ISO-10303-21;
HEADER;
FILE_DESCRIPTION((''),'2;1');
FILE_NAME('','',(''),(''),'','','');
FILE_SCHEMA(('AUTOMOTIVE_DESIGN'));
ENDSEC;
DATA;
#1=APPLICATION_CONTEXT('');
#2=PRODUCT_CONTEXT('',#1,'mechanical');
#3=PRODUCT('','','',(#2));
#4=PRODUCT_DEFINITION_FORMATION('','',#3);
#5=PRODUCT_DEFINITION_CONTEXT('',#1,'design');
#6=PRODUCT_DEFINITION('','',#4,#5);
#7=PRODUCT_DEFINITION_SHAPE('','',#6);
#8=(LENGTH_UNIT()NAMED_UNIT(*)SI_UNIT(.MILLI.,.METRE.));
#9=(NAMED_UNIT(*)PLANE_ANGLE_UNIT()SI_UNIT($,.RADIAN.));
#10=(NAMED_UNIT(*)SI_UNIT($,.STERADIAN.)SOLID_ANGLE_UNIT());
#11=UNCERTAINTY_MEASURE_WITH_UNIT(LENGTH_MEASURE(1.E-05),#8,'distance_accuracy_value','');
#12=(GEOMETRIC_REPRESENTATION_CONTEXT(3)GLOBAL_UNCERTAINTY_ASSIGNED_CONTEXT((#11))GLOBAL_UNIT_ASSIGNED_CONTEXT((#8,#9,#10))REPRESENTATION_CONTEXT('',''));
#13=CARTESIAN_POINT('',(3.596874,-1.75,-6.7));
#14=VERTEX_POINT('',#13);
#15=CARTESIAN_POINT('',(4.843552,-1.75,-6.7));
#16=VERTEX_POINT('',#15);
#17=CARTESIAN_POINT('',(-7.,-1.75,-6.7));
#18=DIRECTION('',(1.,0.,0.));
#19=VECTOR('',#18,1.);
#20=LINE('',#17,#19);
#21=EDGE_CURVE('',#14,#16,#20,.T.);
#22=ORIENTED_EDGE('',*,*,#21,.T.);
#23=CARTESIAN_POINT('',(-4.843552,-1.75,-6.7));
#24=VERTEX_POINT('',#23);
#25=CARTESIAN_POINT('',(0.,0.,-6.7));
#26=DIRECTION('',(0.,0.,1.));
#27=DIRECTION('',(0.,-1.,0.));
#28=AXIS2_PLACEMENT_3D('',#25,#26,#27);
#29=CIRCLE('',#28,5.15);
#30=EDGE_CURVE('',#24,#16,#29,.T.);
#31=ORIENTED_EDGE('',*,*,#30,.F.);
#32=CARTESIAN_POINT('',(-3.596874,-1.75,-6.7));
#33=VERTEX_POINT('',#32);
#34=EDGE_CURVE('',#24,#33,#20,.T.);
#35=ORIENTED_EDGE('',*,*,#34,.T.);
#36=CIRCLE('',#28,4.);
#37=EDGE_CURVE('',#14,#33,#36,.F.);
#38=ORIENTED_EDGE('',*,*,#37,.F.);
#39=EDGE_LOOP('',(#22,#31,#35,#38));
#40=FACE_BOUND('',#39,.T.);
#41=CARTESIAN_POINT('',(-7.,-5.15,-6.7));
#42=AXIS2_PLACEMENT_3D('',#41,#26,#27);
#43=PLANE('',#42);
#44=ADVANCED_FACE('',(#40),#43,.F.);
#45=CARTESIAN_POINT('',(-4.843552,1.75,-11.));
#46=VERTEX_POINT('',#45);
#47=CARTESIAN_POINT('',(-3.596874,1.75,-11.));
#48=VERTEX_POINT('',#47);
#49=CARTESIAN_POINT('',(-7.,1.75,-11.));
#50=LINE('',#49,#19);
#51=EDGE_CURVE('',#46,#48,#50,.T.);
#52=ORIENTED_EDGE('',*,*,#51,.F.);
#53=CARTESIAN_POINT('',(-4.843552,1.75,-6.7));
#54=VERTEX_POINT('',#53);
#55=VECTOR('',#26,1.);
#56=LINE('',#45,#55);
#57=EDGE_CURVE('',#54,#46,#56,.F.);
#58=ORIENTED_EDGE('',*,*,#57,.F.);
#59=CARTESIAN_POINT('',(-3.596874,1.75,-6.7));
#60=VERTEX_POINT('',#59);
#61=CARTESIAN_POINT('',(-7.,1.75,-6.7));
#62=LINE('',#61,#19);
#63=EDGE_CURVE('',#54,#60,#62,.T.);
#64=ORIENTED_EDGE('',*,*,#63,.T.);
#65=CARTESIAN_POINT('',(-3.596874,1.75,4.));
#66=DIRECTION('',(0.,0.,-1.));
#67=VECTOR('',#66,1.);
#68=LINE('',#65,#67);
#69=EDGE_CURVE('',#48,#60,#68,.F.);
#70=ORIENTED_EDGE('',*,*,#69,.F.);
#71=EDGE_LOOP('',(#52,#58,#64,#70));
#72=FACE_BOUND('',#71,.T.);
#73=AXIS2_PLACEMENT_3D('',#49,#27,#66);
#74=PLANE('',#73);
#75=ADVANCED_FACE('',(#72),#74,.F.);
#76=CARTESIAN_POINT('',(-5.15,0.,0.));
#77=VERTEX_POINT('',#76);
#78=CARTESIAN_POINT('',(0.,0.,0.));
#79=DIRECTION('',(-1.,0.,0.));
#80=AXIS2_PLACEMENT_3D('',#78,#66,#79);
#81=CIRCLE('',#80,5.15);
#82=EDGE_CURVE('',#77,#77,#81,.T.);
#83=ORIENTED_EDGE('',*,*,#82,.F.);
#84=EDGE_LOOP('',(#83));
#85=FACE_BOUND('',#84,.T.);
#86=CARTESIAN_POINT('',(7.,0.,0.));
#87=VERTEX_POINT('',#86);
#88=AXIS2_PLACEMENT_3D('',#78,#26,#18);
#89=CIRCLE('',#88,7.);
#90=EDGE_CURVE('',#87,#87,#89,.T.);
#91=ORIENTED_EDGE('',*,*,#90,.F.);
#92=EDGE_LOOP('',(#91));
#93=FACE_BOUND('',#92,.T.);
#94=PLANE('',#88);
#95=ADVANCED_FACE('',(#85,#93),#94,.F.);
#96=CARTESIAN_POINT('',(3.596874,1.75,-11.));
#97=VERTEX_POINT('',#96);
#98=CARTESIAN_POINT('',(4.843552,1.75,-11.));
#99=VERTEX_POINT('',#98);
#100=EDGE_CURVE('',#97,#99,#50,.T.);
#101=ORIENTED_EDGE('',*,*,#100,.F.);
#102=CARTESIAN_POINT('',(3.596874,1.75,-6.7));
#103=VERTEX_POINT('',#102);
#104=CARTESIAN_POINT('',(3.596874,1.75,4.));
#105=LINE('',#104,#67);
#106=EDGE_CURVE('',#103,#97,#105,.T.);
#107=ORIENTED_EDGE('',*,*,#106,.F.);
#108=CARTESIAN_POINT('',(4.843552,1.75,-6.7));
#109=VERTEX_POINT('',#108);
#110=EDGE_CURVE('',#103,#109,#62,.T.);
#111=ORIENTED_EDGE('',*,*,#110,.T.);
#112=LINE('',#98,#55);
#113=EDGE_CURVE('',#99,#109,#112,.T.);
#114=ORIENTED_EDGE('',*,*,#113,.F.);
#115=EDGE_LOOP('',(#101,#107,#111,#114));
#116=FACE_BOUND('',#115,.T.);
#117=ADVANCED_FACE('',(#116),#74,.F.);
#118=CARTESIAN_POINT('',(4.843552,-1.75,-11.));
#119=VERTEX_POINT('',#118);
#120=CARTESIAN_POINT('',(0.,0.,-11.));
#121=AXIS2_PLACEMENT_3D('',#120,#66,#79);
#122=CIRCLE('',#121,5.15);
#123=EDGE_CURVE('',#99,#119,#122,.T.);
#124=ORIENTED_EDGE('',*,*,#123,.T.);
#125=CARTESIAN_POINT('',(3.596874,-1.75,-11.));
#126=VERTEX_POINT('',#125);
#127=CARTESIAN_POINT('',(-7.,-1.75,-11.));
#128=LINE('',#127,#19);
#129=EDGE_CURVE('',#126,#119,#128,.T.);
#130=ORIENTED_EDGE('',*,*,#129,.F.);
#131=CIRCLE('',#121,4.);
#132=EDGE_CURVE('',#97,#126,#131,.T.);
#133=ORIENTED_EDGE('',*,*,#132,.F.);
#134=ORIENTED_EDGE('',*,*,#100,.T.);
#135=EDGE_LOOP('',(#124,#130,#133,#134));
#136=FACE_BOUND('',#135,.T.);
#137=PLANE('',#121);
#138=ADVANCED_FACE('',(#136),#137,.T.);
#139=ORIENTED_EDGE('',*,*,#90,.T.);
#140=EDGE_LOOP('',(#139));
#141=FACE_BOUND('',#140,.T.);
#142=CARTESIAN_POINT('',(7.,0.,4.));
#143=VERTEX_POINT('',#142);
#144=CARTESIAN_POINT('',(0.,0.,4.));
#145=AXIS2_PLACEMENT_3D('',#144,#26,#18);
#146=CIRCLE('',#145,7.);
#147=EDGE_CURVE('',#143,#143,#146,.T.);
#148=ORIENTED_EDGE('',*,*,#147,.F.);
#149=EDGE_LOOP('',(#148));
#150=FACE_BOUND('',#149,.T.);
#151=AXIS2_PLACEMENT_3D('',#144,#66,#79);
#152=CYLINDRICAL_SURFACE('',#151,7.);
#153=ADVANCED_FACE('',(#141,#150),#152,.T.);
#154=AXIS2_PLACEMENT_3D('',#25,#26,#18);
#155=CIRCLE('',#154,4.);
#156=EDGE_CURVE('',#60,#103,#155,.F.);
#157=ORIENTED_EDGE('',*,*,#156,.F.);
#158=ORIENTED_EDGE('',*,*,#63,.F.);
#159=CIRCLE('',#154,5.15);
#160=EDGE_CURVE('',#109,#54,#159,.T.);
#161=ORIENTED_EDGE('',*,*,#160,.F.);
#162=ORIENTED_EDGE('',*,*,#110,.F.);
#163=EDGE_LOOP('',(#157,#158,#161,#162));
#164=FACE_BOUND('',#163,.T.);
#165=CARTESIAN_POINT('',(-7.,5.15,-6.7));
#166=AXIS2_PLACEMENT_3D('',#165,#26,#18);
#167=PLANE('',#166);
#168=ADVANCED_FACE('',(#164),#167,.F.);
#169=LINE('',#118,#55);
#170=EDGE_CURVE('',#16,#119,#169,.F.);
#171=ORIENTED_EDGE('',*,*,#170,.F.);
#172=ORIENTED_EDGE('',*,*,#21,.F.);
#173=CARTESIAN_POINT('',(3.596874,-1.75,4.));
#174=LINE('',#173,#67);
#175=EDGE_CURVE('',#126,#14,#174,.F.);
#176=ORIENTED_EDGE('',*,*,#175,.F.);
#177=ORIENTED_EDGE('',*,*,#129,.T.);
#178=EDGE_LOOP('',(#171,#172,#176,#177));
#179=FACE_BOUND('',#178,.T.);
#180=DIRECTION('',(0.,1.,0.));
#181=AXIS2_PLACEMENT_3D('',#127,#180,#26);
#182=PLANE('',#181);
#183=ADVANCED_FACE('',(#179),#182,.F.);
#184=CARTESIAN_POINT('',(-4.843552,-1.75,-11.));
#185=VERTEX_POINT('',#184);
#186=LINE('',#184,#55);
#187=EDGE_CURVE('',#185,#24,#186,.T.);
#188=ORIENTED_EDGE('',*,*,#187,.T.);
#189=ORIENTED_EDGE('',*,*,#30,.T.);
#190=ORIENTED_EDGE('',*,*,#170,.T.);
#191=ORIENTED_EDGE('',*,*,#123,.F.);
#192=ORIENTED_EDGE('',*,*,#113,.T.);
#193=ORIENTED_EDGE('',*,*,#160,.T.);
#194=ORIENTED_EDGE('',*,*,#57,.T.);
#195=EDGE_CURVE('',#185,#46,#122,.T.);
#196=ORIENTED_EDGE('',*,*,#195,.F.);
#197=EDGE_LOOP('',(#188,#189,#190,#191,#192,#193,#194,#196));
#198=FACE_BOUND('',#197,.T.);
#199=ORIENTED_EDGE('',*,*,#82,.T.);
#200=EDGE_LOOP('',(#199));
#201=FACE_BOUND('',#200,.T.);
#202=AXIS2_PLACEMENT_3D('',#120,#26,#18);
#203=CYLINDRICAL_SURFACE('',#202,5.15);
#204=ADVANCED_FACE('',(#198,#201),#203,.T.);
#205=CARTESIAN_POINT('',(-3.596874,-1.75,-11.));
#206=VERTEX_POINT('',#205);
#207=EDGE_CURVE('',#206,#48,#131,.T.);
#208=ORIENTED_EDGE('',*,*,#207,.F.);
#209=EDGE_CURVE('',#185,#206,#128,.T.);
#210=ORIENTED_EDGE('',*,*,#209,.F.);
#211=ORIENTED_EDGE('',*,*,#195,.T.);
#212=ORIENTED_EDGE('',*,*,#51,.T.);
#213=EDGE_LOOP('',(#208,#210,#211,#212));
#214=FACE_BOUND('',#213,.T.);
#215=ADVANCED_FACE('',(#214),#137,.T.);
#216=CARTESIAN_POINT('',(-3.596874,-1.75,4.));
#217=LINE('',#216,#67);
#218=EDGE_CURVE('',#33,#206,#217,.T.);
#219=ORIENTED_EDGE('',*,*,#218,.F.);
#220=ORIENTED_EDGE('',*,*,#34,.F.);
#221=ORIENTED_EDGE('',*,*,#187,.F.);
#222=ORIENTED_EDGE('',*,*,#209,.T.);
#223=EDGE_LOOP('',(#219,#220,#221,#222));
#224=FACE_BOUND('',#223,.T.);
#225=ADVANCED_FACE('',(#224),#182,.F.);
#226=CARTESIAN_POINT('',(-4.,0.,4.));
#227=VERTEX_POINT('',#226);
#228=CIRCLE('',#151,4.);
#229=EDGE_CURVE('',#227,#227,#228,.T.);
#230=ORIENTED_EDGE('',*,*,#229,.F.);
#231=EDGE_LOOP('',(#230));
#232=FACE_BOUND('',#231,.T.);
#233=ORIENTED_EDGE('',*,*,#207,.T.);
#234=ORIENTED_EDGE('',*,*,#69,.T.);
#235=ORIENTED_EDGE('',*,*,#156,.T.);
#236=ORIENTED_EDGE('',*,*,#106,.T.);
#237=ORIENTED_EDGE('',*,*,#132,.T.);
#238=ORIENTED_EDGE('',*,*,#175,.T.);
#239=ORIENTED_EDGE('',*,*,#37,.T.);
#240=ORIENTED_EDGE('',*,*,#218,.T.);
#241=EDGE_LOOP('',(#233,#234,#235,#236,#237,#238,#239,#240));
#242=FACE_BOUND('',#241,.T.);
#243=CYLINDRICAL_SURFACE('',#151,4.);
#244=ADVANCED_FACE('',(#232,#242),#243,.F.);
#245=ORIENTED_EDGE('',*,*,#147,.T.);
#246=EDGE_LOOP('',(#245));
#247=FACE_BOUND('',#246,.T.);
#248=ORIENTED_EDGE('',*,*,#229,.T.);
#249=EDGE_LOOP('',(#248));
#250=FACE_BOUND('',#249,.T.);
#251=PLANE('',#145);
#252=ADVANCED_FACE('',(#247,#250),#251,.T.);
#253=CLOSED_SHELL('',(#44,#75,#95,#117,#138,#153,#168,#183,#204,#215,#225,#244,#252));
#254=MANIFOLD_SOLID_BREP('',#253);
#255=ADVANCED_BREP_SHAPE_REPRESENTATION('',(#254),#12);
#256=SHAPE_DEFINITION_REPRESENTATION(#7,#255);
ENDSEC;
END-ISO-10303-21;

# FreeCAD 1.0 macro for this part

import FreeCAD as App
import Part
import Sketcher
from FreeCAD import Vector


def add_polygon(sketch, points):
    """Adds a closed chain of lines whose ends are joined by coincident constraints."""
    first, n = sketch.GeometryCount, len(points)
    for a, b in zip(points, points[1:] + points[:1]):
        sketch.addGeometry(Part.LineSegment(App.Vector(*a, 0), App.Vector(*b, 0)), False)
    for i in range(n):
        sketch.addConstraint(Sketcher.Constraint("Coincident", first + i, 2, first + (i + 1) % n, 1))

doc = App.newDocument("Part")
body = doc.addObject("PartDesign::Body", "Body")

# Sketch on XY plane
sketch1 = body.newObject("Sketcher::SketchObject", "Sketch")
sketch1.AttachmentSupport = (doc.getObject("XY_Plane"), [""])
sketch1.MapMode = "FlatFace"
sketch1.addGeometry(Part.Circle(Vector(0, 0, 0), Vector(0, 0, 1), 7), False)
sketch1.addConstraint([
    Sketcher.Constraint("Coincident", 0, 3, -1, 1),
    Sketcher.Constraint("Diameter", 0, 14.0),
])
pad1 = body.newObject("PartDesign::Pad", "Pad")
pad1.Profile = sketch1
pad1.Length = 4

# Sketch on XY plane
sketch2 = body.newObject("Sketcher::SketchObject", "Sketch001")
sketch2.AttachmentSupport = (doc.getObject("XY_Plane"), [""])
sketch2.MapMode = "FlatFace"
sketch2.addGeometry(Part.Circle(Vector(0, 0, 0), Vector(0, 0, 1), 5), False)
sketch2.addConstraint([
    Sketcher.Constraint("Coincident", 0, 3, -1, 1),
    Sketcher.Constraint("Diameter", 0, 10.3),
])
pad2 = body.newObject("PartDesign::Pad", "Pad001")
pad2.Profile = sketch2
pad2.Length = 11
pad2.Reversed = True

# Sketch on XY plane
sketch3 = body.newObject("Sketcher::SketchObject", "Sketch002")
sketch3.AttachmentSupport = (doc.getObject("XY_Plane"), [""])
sketch3.MapMode = "FlatFace"
sketch3.AttachmentOffset = App.Placement(Vector(0, 0, -11), App.Rotation())
sketch3.addGeometry(Part.Circle(Vector(0, 0, 0), Vector(0, 0, 1), 4), False)
sketch3.addConstraint([
    Sketcher.Constraint("Coincident", 0, 3, -1, 1),
    Sketcher.Constraint("Diameter", 0, 8.0),
])
pocket1 = body.newObject("PartDesign::Pocket", "Pocket")
pocket1.Profile = sketch3
pocket1.Type = "ThroughAll"
pocket1.Midplane = True

# Sketch on YZ plane
sketch4 = body.newObject("Sketcher::SketchObject", "Sketch003")
sketch4.AttachmentSupport = (doc.getObject("YZ_Plane"), [""])
sketch4.MapMode = "FlatFace"
add_polygon(sketch4, [(5.2, -6.7), (1.8, -6.7), (1.8, -11), (5.2, -11)])  # lines 0-3
add_polygon(sketch4, [(-1.8, -6.7), (-5.2, -6.7), (-5.2, -11), (-1.8, -11)])  # lines 4-7
sketch4.addConstraint([
    Sketcher.Constraint("Horizontal", 0),
    Sketcher.Constraint("Vertical", 1),
    Sketcher.Constraint("Horizontal", 2),
    Sketcher.Constraint("Vertical", 3),
    Sketcher.Constraint("Horizontal", 4),
    Sketcher.Constraint("Vertical", 5),
    Sketcher.Constraint("Horizontal", 6),
    Sketcher.Constraint("Vertical", 7),
    Sketcher.Constraint("Symmetric", 3, 2, 4, 2, -2),
    Sketcher.Constraint("Symmetric", 1, 2, 6, 2, -2),
    Sketcher.Constraint("DistanceX", 0, 2, 0, 1, 3.4),
    Sketcher.Constraint("DistanceY", 1, 2, 1, 1, 4.3),
    Sketcher.Constraint("DistanceY", 1, 2, -1, 1, 11.0),
    Sketcher.Constraint("DistanceX", 4, 2, 0, 2, 6.9),
])
pocket2 = body.newObject("PartDesign::Pocket", "Pocket001")
pocket2.Profile = sketch4
pocket2.Type = "ThroughAll"
pocket2.Midplane = True

doc.recompute()
